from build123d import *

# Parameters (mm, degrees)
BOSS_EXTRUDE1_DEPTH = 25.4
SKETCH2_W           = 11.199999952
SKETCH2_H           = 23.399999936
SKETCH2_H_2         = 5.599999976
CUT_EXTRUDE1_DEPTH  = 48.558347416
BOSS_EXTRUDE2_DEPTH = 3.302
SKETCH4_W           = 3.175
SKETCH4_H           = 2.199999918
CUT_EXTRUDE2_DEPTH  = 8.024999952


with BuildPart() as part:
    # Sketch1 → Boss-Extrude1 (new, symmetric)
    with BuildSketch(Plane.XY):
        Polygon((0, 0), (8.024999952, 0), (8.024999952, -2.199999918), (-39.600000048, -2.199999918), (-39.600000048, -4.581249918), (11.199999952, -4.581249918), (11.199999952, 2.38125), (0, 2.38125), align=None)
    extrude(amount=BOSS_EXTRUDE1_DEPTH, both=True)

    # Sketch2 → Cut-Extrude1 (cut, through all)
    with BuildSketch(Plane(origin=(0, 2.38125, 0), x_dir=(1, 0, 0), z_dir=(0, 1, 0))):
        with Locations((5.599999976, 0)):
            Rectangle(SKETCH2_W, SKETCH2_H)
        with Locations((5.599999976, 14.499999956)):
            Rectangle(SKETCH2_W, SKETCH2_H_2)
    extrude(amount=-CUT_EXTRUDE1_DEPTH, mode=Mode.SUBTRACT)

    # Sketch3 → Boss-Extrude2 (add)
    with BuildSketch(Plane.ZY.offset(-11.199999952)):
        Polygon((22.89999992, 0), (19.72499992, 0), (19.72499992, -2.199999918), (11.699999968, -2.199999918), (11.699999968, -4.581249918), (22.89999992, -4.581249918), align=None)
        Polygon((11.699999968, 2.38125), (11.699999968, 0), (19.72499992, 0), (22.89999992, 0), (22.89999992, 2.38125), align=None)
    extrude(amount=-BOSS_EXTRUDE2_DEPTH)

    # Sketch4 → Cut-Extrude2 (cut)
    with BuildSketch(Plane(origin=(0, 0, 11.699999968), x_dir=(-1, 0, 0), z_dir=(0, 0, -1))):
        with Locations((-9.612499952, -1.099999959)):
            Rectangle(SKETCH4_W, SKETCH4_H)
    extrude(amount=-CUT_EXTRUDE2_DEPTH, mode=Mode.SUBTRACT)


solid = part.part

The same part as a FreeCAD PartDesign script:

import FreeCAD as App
import Part
import Sketcher

V = App.Vector
Q = App.Units.Quantity

doc = App.newDocument("Part")
params = doc.addObject("Spreadsheet::Sheet", "Params")
for row, (alias, value) in enumerate([
    ("sketch1_width", "2 in"),
    ("sketch1_width2", "1.875 in"),
    ("sketch1_height", "0.09375 in"),
    ("pad1_length", "2 in"),
    ("sketch3_width", "0.09375 in"),
    ("pad2_length", "0.13 in"),
    ("sketch4_width", "0.125 in"),
    ("pocket2_length", "8.025 mm"),
], start=1):
    params.set(f"A{row}", alias)
    params.set(f"B{row}", "=" + value)
    params.setAlias(f"B{row}", alias)

body = doc.addObject("PartDesign::Body", "Body")

sketch1 = doc.addObject("Sketcher::SketchObject", "Sketch")
body.addObject(sketch1)
sketch1.AttachmentSupport = (doc.XY_Plane, [""])
sketch1.MapMode = "FlatFace"
sketch1.addGeometry(Part.LineSegment(V(0, 0, 0), V(8, 0, 0)), False)
sketch1.addGeometry(Part.LineSegment(V(8, 0, 0), V(8, -2.2, 0)), False)
sketch1.addGeometry(Part.LineSegment(V(8, -2.2, 0), V(-39.6, -2.2, 0)), False)
sketch1.addGeometry(Part.LineSegment(V(-39.6, -2.2, 0), V(-39.6, -4.6, 0)), False)
sketch1.addGeometry(Part.LineSegment(V(-39.6, -4.6, 0), V(11.2, -4.6, 0)), False)
sketch1.addGeometry(Part.LineSegment(V(11.2, -4.6, 0), V(11.2, 2.4, 0)), False)
sketch1.addGeometry(Part.LineSegment(V(11.2, 2.4, 0), V(0, 2.4, 0)), False)
sketch1.addGeometry(Part.LineSegment(V(0, 2.4, 0), V(0, 0, 0)), False)
sketch1.addConstraint(Sketcher.Constraint("Coincident", 0, 2, 1, 1))
sketch1.addConstraint(Sketcher.Constraint("Coincident", 1, 2, 2, 1))
sketch1.addConstraint(Sketcher.Constraint("Coincident", 2, 2, 3, 1))
sketch1.addConstraint(Sketcher.Constraint("Coincident", 3, 2, 4, 1))
sketch1.addConstraint(Sketcher.Constraint("Coincident", 4, 2, 5, 1))
sketch1.addConstraint(Sketcher.Constraint("Coincident", 5, 2, 6, 1))
sketch1.addConstraint(Sketcher.Constraint("Coincident", 6, 2, 7, 1))
sketch1.addConstraint(Sketcher.Constraint("Coincident", 7, 2, 0, 1))
sketch1.addConstraint(Sketcher.Constraint("Horizontal", 0))
sketch1.addConstraint(Sketcher.Constraint("Vertical", 1))
sketch1.addConstraint(Sketcher.Constraint("Horizontal", 2))
sketch1.addConstraint(Sketcher.Constraint("Vertical", 3))
sketch1.addConstraint(Sketcher.Constraint("Horizontal", 4))
sketch1.addConstraint(Sketcher.Constraint("Vertical", 5))
sketch1.addConstraint(Sketcher.Constraint("Horizontal", 6))
sketch1.addConstraint(Sketcher.Constraint("Vertical", 7))
sketch1.addConstraint(Sketcher.Constraint("Coincident", 7, 2, -1, 1))
sketch1.addConstraint(Sketcher.Constraint("Equal", 3, 7))
sketch1.addConstraint(Sketcher.Constraint("DistanceX", 4, 1, 4, 2, Q("2 in")))
sketch1.addConstraint(Sketcher.Constraint("DistanceX", 2, 2, 2, 1, Q("1.875 in")))
sketch1.addConstraint(Sketcher.Constraint("DistanceY", 3, 2, 3, 1, Q("0.09375 in")))
sketch1.addConstraint(Sketcher.Constraint("DistanceX", 0, 1, 0, 2, Q("8.025 mm")))
sketch1.addConstraint(Sketcher.Constraint("DistanceY", 1, 2, 1, 1, Q("2.2 mm")))
sketch1.setExpression("Constraints[18]", "Params.sketch1_width")
sketch1.setExpression("Constraints[19]", "Params.sketch1_width2")
sketch1.setExpression("Constraints[20]", "Params.sketch1_height")
pad1 = doc.addObject("PartDesign::Pad", "Pad")
body.addObject(pad1)
pad1.Profile = sketch1
pad1.setExpression("Length", "Params.pad1_length")
pad1.Midplane = True

sketch2 = doc.addObject("Sketcher::SketchObject", "Sketch001")
body.addObject(sketch2)
sketch2.AttachmentSupport = (doc.XZ_Plane, [""])
sketch2.MapMode = "FlatFace"
sketch2.AttachmentOffset = App.Placement(V(0, 0, -0.09375 * 25.4), App.Rotation())
sketch2.addGeometry(Part.LineSegment(V(0, 12, 0), V(11, 12, 0)), False)
sketch2.addGeometry(Part.LineSegment(V(11, 12, 0), V(11, -17, 0)), False)
sketch2.addGeometry(Part.LineSegment(V(11, -17, 0), V(0, -17, 0)), False)
sketch2.addGeometry(Part.LineSegment(V(0, -17, 0), V(0, 12, 0)), False)
sketch2.addConstraint(Sketcher.Constraint("Coincident", 0, 2, 1, 1))
sketch2.addConstraint(Sketcher.Constraint("Coincident", 1, 2, 2, 1))
sketch2.addConstraint(Sketcher.Constraint("Coincident", 2, 2, 3, 1))
sketch2.addConstraint(Sketcher.Constraint("Coincident", 3, 2, 0, 1))
sketch2.addConstraint(Sketcher.Constraint("Horizontal", 0))
sketch2.addConstraint(Sketcher.Constraint("Vertical", 1))
sketch2.addConstraint(Sketcher.Constraint("Horizontal", 2))
sketch2.addConstraint(Sketcher.Constraint("Vertical", 3))
sketch2.addConstraint(Sketcher.Constraint("PointOnObject", 2, 2, -2))
sketch2.addConstraint(Sketcher.Constraint("DistanceX", 0, 1, 0, 2, Q("11.2 mm")))
sketch2.addConstraint(Sketcher.Constraint("DistanceY", 1, 2, 1, 1, Q("29 mm")))
sketch2.addConstraint(Sketcher.Constraint("DistanceY", -1, 1, 0, 2, Q("11.7 mm")))
pocket1 = doc.addObject("PartDesign::Pocket", "Pocket")
body.addObject(pocket1)
pocket1.Profile = sketch2
pocket1.Type = "ThroughAll"
pocket1.Reversed = True

sketch3 = doc.addObject("Sketcher::SketchObject", "Sketch002")
body.addObject(sketch3)
sketch3.AttachmentSupport = (doc.YZ_Plane, [""])
sketch3.MapMode = "FlatFace"
sketch3.AttachmentOffset = App.Placement(V(0, 0, 11.2), App.Rotation())
sketch3.addGeometry(Part.LineSegment(V(0, 19.7, 0), V(-2.2, 19.7, 0)), False)
sketch3.addGeometry(Part.LineSegment(V(-2.2, 19.7, 0), V(-2.2, 11.7, 0)), False)
sketch3.addGeometry(Part.LineSegment(V(-2.2, 11.7, 0), V(-4.6, 11.7, 0)), False)
sketch3.addGeometry(Part.LineSegment(V(-4.6, 11.7, 0), V(-4.6, 22.9, 0)), False)
sketch3.addGeometry(Part.LineSegment(V(-4.6, 22.9, 0), V(2.4, 22.9, 0)), False)
sketch3.addGeometry(Part.LineSegment(V(2.4, 22.9, 0), V(2.4, 11.7, 0)), False)
sketch3.addGeometry(Part.LineSegment(V(2.4, 11.7, 0), V(0, 11.7, 0)), False)
sketch3.addGeometry(Part.LineSegment(V(0, 11.7, 0), V(0, 19.7, 0)), False)
sketch3.addConstraint(Sketcher.Constraint("Coincident", 0, 2, 1, 1))
sketch3.addConstraint(Sketcher.Constraint("Coincident", 1, 2, 2, 1))
sketch3.addConstraint(Sketcher.Constraint("Coincident", 2, 2, 3, 1))
sketch3.addConstraint(Sketcher.Constraint("Coincident", 3, 2, 4, 1))
sketch3.addConstraint(Sketcher.Constraint("Coincident", 4, 2, 5, 1))
sketch3.addConstraint(Sketcher.Constraint("Coincident", 5, 2, 6, 1))
sketch3.addConstraint(Sketcher.Constraint("Coincident", 6, 2, 7, 1))
sketch3.addConstraint(Sketcher.Constraint("Coincident", 7, 2, 0, 1))
sketch3.addConstraint(Sketcher.Constraint("Horizontal", 0))
sketch3.addConstraint(Sketcher.Constraint("Vertical", 1))
sketch3.addConstraint(Sketcher.Constraint("Horizontal", 2))
sketch3.addConstraint(Sketcher.Constraint("Vertical", 3))
sketch3.addConstraint(Sketcher.Constraint("Horizontal", 4))
sketch3.addConstraint(Sketcher.Constraint("Vertical", 5))
sketch3.addConstraint(Sketcher.Constraint("Horizontal", 6))
sketch3.addConstraint(Sketcher.Constraint("Vertical", 7))
sketch3.addConstraint(Sketcher.Constraint("PointOnObject", 6, 2, -2))
sketch3.addConstraint(Sketcher.Constraint("Horizontal", 2, 2, 5, 2))
sketch3.addConstraint(Sketcher.Constraint("Equal", 2, 6))
sketch3.addConstraint(Sketcher.Constraint("DistanceX", 2, 2, 2, 1, Q("0.09375 in")))
sketch3.addConstraint(Sketcher.Constraint("DistanceY", 0, 2, 3, 2, Q("0.125 in")))
sketch3.addConstraint(Sketcher.Constraint("DistanceX", 0, 2, 0, 1, Q("2.2 mm")))
sketch3.addConstraint(Sketcher.Constraint("DistanceY", 1, 2, 1, 1, Q("8.025 mm")))
sketch3.addConstraint(Sketcher.Constraint("DistanceY", -1, 1, 0, 2, Q("19.725 mm")))
sketch3.setExpression("Constraints[19]", "Params.sketch3_width")
pad2 = doc.addObject("PartDesign::Pad", "Pad001")
body.addObject(pad2)
pad2.Profile = sketch3
pad2.setExpression("Length", "Params.pad2_length")

sketch4 = doc.addObject("Sketcher::SketchObject", "Sketch003")
body.addObject(sketch4)
sketch4.AttachmentSupport = (doc.XY_Plane, [""])
sketch4.MapMode = "FlatFace"
sketch4.AttachmentOffset = App.Placement(V(0, 0, 11.7), App.Rotation())
sketch4.addGeometry(Part.LineSegment(V(11.2, 0, 0), V(11.2, -2.2, 0)), False)
sketch4.addGeometry(Part.LineSegment(V(11.2, -2.2, 0), V(8, -2.2, 0)), False)
sketch4.addGeometry(Part.LineSegment(V(8, -2.2, 0), V(8, 0, 0)), False)
sketch4.addGeometry(Part.LineSegment(V(8, 0, 0), V(11.2, 0, 0)), False)
sketch4.addConstraint(Sketcher.Constraint("Coincident", 0, 2, 1, 1))
sketch4.addConstraint(Sketcher.Constraint("Coincident", 1, 2, 2, 1))
sketch4.addConstraint(Sketcher.Constraint("Coincident", 2, 2, 3, 1))
sketch4.addConstraint(Sketcher.Constraint("Coincident", 3, 2, 0, 1))
sketch4.addConstraint(Sketcher.Constraint("Vertical", 0))
sketch4.addConstraint(Sketcher.Constraint("Horizontal", 1))
sketch4.addConstraint(Sketcher.Constraint("Vertical", 2))
sketch4.addConstraint(Sketcher.Constraint("Horizontal", 3))
sketch4.addConstraint(Sketcher.Constraint("PointOnObject", 2, 2, -1))
sketch4.addConstraint(Sketcher.Constraint("DistanceX", 1, 2, 1, 1, Q("0.125 in")))
sketch4.addConstraint(Sketcher.Constraint("DistanceY", 0, 2, 0, 1, Q("2.2 mm")))
sketch4.addConstraint(Sketcher.Constraint("DistanceX", -1, 1, 0, 2, Q("11.2 mm")))
sketch4.setExpression("Constraints[9]", "Params.sketch4_width")
pocket2 = doc.addObject("PartDesign::Pocket", "Pocket001")
body.addObject(pocket2)
pocket2.Profile = sketch4
pocket2.setExpression("Length", "Params.pocket2_length")
pocket2.Reversed = True

doc.recompute()
